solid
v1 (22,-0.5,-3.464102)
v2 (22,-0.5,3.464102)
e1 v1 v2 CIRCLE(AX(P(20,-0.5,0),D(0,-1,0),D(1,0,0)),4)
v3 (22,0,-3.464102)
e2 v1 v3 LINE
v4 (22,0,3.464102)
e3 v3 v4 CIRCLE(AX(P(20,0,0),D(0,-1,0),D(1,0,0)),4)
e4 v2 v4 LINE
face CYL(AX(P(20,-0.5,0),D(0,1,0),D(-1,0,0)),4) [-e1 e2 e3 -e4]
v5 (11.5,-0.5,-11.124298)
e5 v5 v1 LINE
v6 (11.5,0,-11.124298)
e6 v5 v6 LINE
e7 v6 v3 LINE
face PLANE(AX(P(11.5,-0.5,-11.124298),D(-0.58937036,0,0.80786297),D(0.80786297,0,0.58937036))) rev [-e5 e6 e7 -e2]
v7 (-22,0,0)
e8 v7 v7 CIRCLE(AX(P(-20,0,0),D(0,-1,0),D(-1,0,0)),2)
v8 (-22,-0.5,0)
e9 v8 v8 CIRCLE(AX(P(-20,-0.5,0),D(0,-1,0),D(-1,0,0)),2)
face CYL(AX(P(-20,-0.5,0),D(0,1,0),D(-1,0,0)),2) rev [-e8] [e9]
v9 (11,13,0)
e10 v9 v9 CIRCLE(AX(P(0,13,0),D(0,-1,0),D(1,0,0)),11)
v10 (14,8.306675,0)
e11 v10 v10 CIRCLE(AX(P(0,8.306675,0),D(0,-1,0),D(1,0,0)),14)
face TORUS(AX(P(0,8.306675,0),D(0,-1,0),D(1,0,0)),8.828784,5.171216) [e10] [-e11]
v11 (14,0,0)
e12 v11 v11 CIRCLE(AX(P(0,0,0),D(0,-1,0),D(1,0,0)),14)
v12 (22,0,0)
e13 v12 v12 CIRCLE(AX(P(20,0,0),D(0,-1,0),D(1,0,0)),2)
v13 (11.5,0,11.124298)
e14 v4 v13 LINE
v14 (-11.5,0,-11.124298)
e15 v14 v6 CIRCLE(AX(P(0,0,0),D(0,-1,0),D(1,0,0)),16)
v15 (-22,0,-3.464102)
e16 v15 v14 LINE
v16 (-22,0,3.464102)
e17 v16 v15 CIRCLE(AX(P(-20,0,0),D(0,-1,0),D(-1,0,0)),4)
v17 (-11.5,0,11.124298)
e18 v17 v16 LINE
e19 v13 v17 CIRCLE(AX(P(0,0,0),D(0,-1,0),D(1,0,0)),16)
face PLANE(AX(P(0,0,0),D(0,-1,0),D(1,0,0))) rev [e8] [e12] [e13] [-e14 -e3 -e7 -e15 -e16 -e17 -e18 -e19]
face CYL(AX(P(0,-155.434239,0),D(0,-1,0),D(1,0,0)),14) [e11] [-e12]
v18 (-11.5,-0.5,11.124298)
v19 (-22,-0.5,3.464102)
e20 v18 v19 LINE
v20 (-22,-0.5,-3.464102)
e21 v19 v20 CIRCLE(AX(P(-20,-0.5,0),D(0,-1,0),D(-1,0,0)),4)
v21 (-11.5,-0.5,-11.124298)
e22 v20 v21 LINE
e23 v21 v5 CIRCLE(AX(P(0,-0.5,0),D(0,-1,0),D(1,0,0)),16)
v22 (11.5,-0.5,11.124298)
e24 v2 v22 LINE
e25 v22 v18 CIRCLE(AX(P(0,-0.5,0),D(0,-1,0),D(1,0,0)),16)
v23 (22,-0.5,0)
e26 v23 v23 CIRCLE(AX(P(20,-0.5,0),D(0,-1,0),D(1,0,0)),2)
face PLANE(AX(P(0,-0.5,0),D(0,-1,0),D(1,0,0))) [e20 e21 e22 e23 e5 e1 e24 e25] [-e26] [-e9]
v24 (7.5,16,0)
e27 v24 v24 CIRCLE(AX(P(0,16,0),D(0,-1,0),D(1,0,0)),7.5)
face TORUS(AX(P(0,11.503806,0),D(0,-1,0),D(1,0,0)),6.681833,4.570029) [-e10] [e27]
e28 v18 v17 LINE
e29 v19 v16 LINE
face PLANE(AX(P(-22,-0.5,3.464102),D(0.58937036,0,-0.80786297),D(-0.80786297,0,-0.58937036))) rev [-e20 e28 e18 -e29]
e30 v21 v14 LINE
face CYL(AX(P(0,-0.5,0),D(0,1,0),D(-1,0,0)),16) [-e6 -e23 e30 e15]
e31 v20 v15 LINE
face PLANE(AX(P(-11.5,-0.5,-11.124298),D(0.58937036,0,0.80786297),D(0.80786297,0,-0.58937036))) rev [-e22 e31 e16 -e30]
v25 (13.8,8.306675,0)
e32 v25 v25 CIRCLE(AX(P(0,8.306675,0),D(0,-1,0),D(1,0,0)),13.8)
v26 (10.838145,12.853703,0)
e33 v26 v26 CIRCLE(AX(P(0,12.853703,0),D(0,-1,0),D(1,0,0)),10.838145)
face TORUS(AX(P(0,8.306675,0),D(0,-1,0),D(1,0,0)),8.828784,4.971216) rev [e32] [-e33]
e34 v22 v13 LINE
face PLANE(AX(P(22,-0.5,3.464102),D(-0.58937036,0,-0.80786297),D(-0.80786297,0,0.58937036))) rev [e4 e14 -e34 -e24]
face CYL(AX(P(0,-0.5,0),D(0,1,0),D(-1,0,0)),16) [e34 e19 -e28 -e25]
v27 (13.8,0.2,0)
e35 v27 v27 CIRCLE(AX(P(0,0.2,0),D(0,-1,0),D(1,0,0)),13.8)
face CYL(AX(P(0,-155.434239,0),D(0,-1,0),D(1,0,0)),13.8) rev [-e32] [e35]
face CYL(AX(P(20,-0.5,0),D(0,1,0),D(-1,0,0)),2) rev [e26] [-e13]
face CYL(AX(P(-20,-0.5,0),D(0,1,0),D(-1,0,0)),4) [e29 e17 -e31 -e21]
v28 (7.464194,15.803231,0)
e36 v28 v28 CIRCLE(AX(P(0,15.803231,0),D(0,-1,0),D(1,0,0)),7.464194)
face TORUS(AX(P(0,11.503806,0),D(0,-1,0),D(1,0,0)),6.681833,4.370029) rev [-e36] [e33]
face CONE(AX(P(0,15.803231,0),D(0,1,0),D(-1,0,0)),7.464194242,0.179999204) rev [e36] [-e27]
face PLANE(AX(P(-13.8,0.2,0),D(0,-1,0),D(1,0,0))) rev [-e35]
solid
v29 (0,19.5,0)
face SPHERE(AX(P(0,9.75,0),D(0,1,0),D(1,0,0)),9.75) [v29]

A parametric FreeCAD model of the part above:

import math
import FreeCAD as App
import Part
import Sketcher
from FreeCAD import Vector

doc = App.newDocument("Part")
body = doc.addObject("PartDesign::Body", "Body")

sketch1 = body.newObject("Sketcher::SketchObject", "Sketch")
sketch1.AttachmentSupport = (doc.getObject("XY_Plane"), [""])
sketch1.MapMode = "FlatFace"
sketch1.addGeometry(Part.LineSegment(Vector(-14, 8.31, 0), Vector(-14, 0, 0)), False)
sketch1.addGeometry(Part.LineSegment(Vector(-14, 0, 0), Vector(0, 0, 0)), False)
sketch1.addGeometry(Part.LineSegment(Vector(0, 0, 0), Vector(0, 0.2, 0)), False)
sketch1.addGeometry(Part.LineSegment(Vector(0, 0.2, 0), Vector(-13.8, 0.2, 0)), False)
sketch1.addGeometry(Part.LineSegment(Vector(-13.8, 0.2, 0), Vector(-13.8, 8.31, 0)), False)
sketch1.addGeometry(Part.ArcOfCircle(Part.Circle(Vector(-8.83, 8.31, 0), Vector(0, 0, 1), 4.97), math.radians(114), math.radians(180)), False)
sketch1.addGeometry(Part.ArcOfCircle(Part.Circle(Vector(-6.68, 11.5, 0), Vector(0, 0, 1), 4.37), math.radians(100), math.radians(162)), False)
sketch1.addGeometry(Part.LineSegment(Vector(-7.46, 15.8, 0), Vector(-7.5, 16, 0)), False)
sketch1.addGeometry(Part.ArcOfCircle(Part.Circle(Vector(-6.68, 11.5, 0), Vector(0, 0, 1), 4.57), math.radians(100), math.radians(161)), False)
sketch1.addGeometry(Part.ArcOfCircle(Part.Circle(Vector(-8.83, 8.31, 0), Vector(0, 0, 1), 5.17), math.radians(115), math.radians(180)), False)
sketch1.addConstraint(Sketcher.Constraint("Coincident", 0, 2, 1, 1))
sketch1.addConstraint(Sketcher.Constraint("Coincident", 1, 2, 2, 1))
sketch1.addConstraint(Sketcher.Constraint("Coincident", 2, 2, 3, 1))
sketch1.addConstraint(Sketcher.Constraint("Coincident", 3, 2, 4, 1))
sketch1.addConstraint(Sketcher.Constraint("Tangent", 4, 2, 5, 2))
sketch1.addConstraint(Sketcher.Constraint("Coincident", 5, 1, 6, 2))
sketch1.addConstraint(Sketcher.Constraint("Coincident", 6, 1, 7, 1))
sketch1.addConstraint(Sketcher.Constraint("Coincident", 7, 2, 8, 1))
sketch1.addConstraint(Sketcher.Constraint("Coincident", 8, 2, 9, 1))
sketch1.addConstraint(Sketcher.Constraint("Tangent", 9, 2, 0, 1))
sketch1.addConstraint(Sketcher.Constraint("Vertical", 0))
sketch1.addConstraint(Sketcher.Constraint("Horizontal", 1))
sketch1.addConstraint(Sketcher.Constraint("Vertical", 2))
sketch1.addConstraint(Sketcher.Constraint("Horizontal", 3))
sketch1.addConstraint(Sketcher.Constraint("Vertical", 4))
sketch1.addConstraint(Sketcher.Constraint("Coincident", 1, 2, -1, 1))
sketch1.addConstraint(Sketcher.Constraint("Coincident", 8, 3, 6, 3))
sketch1.addConstraint(Sketcher.Constraint("Coincident", 9, 3, 5, 3))
sketch1.addConstraint(Sketcher.Constraint("DistanceX", 1, 1, 1, 2, 14.0))
sketch1.addConstraint(Sketcher.Constraint("DistanceX", 3, 2, 3, 1, 13.8))
sketch1.addConstraint(Sketcher.Constraint("DistanceY", 2, 1, 2, 2, 0.2))
sketch1.addConstraint(Sketcher.Constraint("DistanceY", -1, 1, 7, 2, 16.0))
sketch1.addConstraint(Sketcher.Constraint("DistanceX", 8, 2, -1, 1, 11.0))
sketch1.addConstraint(Sketcher.Constraint("DistanceY", -1, 1, 8, 2, 13.0))
sketch1.addConstraint(Sketcher.Constraint("Distance", 7, 0.2))
sketch1.addConstraint(Sketcher.Constraint("DistanceX", 7, 2, -1, 1, 7.5))
sketch1.addConstraint(Sketcher.Constraint("Radius", 6, 4.370029))
sketch1.addConstraint(Sketcher.Constraint("Radius", 5, 4.971216))
sketch1.addConstraint(Sketcher.Constraint("DistanceY", -1, 1, 6, 1, 15.803231))
revolution = body.newObject("PartDesign::Revolution", "Revolution")
revolution.Profile = sketch1
revolution.ReferenceAxis = (sketch1, ["V_Axis"])
revolution.Angle = 360

sketch2 = body.newObject("Sketcher::SketchObject", "Sketch001")
sketch2.AttachmentSupport = (doc.getObject("XZ_Plane"), [""])
sketch2.MapMode = "FlatFace"
sketch2.addGeometry(Part.LineSegment(Vector(-22, -3.5, 0), Vector(-11.5, -11.1, 0)), False)
sketch2.addGeometry(Part.ArcOfCircle(Part.Circle(Vector(0, 0, 0), Vector(0, 0, 1), 16), math.radians(-136), math.radians(-44)), False)
sketch2.addGeometry(Part.LineSegment(Vector(11.5, -11.1, 0), Vector(22, -3.5, 0)), False)
sketch2.addGeometry(Part.ArcOfCircle(Part.Circle(Vector(20, 0, 0), Vector(0, 0, 1), 4), math.radians(-60), math.radians(60)), False)
sketch2.addGeometry(Part.LineSegment(Vector(22, 3.5, 0), Vector(11.5, 11.1, 0)), False)
sketch2.addGeometry(Part.ArcOfCircle(Part.Circle(Vector(0, 0, 0), Vector(0, 0, 1), 16), math.radians(44), math.radians(136)), False)
sketch2.addGeometry(Part.LineSegment(Vector(-11.5, 11.1, 0), Vector(-22, 3.5, 0)), False)
sketch2.addGeometry(Part.ArcOfCircle(Part.Circle(Vector(-20, 0, 0), Vector(0, 0, 1), 4), math.radians(120), math.radians(240)), False)
sketch2.addGeometry(Part.Circle(Vector(20, 0, 0), Vector(0, 0, 1), 2), False)
sketch2.addGeometry(Part.Circle(Vector(-20, 0, 0), Vector(0, 0, 1), 2), False)
sketch2.addConstraint(Sketcher.Constraint("Coincident", 0, 2, 1, 1))
sketch2.addConstraint(Sketcher.Constraint("Coincident", 1, 2, 2, 1))
sketch2.addConstraint(Sketcher.Constraint("Coincident", 2, 2, 3, 1))
sketch2.addConstraint(Sketcher.Constraint("Coincident", 3, 2, 4, 1))
sketch2.addConstraint(Sketcher.Constraint("Coincident", 4, 2, 5, 1))
sketch2.addConstraint(Sketcher.Constraint("Coincident", 5, 2, 6, 1))
sketch2.addConstraint(Sketcher.Constraint("Coincident", 6, 2, 7, 1))
sketch2.addConstraint(Sketcher.Constraint("Coincident", 7, 2, 0, 1))
sketch2.addConstraint(Sketcher.Constraint("Coincident", 1, 3, -1, 1))
sketch2.addConstraint(Sketcher.Constraint("Coincident", 5, 3, -1, 1))
sketch2.addConstraint(Sketcher.Constraint("Coincident", 8, 3, 3, 3))
sketch2.addConstraint(Sketcher.Constraint("Coincident", 9, 3, 7, 3))
sketch2.addConstraint(Sketcher.Constraint("Equal", 1, 5))
sketch2.addConstraint(Sketcher.Constraint("Equal", 3, 7))
sketch2.addConstraint(Sketcher.Constraint("Equal", 8, 9))
sketch2.addConstraint(Sketcher.Constraint("Symmetric", 3, 3, 7, 3, -1, 1))
sketch2.addConstraint(Sketcher.Constraint("Symmetric", 3, 2, 6, 2, -2))
sketch2.addConstraint(Sketcher.Constraint("Parallel", 0, 4))
sketch2.addConstraint(Sketcher.Constraint("Parallel", 2, 6))
sketch2.addConstraint(Sketcher.Constraint("Horizontal", 0, 2, 1, 2))
sketch2.addConstraint(Sketcher.Constraint("Horizontal", 4, 2, 5, 2))
sketch2.addConstraint(Sketcher.Constraint("Vertical", 2, 2, 3, 2))
sketch2.addConstraint(Sketcher.Constraint("Diameter", 8, 4.0))
sketch2.addConstraint(Sketcher.Constraint("Radius", 1, 16.0))
sketch2.addConstraint(Sketcher.Constraint("Radius", 3, 4.0))
sketch2.addConstraint(Sketcher.Constraint("DistanceX", -1, 1, 3, 3, 20.0))
sketch2.addConstraint(Sketcher.Constraint("DistanceX", -1, 1, 2, 2, 22.0))
sketch2.addConstraint(Sketcher.Constraint("DistanceX", 0, 2, 1, 2, 23.0))
pad1 = body.newObject("PartDesign::Pad", "Pad")
pad1.Profile = sketch2
pad1.Length = 0.5
body2 = doc.addObject("PartDesign::Body", "Body001")

sketch3 = body2.newObject("Sketcher::SketchObject", "Sketch002")
sketch3.AttachmentSupport = (doc.getObject("XY_Plane001"), [""])
sketch3.MapMode = "FlatFace"
sketch3.addGeometry(Part.LineSegment(Vector(0, 0, 0), Vector(0, 20, 0)), False)
sketch3.addGeometry(Part.ArcOfCircle(Part.Circle(Vector(0, 10, 0), Vector(0, 0, 1), 10), math.radians(90), math.radians(270)), False)
sketch3.addConstraint(Sketcher.Constraint("Coincident", 0, 1, 1, 2))
sketch3.addConstraint(Sketcher.Constraint("Coincident", 1, 1, 0, 2))
sketch3.addConstraint(Sketcher.Constraint("Vertical", 0))
sketch3.addConstraint(Sketcher.Constraint("Coincident", 0, 1, -1, 1))
sketch3.addConstraint(Sketcher.Constraint("PointOnObject", 1, 3, -2))
sketch3.addConstraint(Sketcher.Constraint("Radius", 1, 9.75))
revolution2 = body2.newObject("PartDesign::Revolution", "Revolution001")
revolution2.Profile = sketch3
revolution2.ReferenceAxis = (sketch3, ["V_Axis"])
revolution2.Angle = 360

doc.recompute()
